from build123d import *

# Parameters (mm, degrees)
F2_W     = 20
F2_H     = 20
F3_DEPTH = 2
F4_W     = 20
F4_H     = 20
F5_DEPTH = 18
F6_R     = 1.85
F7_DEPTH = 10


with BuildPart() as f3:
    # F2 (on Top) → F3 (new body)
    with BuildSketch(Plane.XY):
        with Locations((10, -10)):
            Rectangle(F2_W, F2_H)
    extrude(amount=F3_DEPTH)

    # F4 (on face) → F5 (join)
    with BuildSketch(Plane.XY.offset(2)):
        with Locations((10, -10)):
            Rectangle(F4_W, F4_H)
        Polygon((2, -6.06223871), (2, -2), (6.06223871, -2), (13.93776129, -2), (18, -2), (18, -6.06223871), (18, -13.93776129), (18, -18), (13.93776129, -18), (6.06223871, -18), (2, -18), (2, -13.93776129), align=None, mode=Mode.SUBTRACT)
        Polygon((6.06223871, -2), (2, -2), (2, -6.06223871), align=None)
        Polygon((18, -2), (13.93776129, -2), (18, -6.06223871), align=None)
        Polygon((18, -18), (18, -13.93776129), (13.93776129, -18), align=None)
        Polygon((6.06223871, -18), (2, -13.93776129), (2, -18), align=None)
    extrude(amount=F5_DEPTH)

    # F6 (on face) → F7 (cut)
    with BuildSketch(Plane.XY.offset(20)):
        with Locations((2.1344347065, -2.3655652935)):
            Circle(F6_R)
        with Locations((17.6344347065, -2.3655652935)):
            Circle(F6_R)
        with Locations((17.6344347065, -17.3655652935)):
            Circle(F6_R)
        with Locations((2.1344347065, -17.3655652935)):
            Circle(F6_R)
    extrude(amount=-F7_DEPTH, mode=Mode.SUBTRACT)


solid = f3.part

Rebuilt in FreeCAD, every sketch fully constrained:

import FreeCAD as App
import Part
import Sketcher
from FreeCAD import Vector


def add_polygon(sketch, points):
    """Adds a closed chain of lines whose ends are joined by coincident constraints."""
    first, n = sketch.GeometryCount, len(points)
    for a, b in zip(points, points[1:] + points[:1]):
        sketch.addGeometry(Part.LineSegment(App.Vector(*a, 0), App.Vector(*b, 0)), False)
    for i in range(n):
        sketch.addConstraint(Sketcher.Constraint("Coincident", first + i, 2, first + (i + 1) % n, 1))

doc = App.newDocument("Part")
body = doc.addObject("PartDesign::Body", "Body")

# Sketch on XY plane
sketch1 = doc.addObject("Sketcher::SketchObject", "Sketch")
body.addObject(sketch1)
sketch1.AttachmentSupport = (doc.XY_Plane, [""])
sketch1.MapMode = "FlatFace"
add_polygon(sketch1, [(0, 0), (0, -20), (20, -20), (20, 0)])  # lines 0-3
sketch1.addConstraint([
    Sketcher.Constraint("Vertical", 0),
    Sketcher.Constraint("Horizontal", 1),
    Sketcher.Constraint("Vertical", 2),
    Sketcher.Constraint("Horizontal", 3),
    Sketcher.Constraint("Coincident", 3, 2, -1, 1),
    Sketcher.Constraint("Equal", 3, 0),
    Sketcher.Constraint("DistanceX", 1, 1, 1, 2, 20.0),
])
pad1 = doc.addObject("PartDesign::Pad", "Pad")
body.addObject(pad1)
pad1.Profile = sketch1
pad1.Length = 2

# Sketch on XY plane
sketch2 = doc.addObject("Sketcher::SketchObject", "Sketch001")
body.addObject(sketch2)
sketch2.AttachmentSupport = (doc.XY_Plane, [""])
sketch2.MapMode = "FlatFace"
sketch2.AttachmentOffset = App.Placement(Vector(0, 0, 2), App.Rotation())
add_polygon(sketch2, [(0, 0), (0, -20), (20, -20), (20, 0)])  # lines 0-3
add_polygon(sketch2, [(2, -14), (2, -6), (6, -2), (14, -2), (18, -6), (18, -14), (14, -18), (6, -18)])  # lines 4-11
sketch2.addConstraint([
    Sketcher.Constraint("Vertical", 0),
    Sketcher.Constraint("Horizontal", 1),
    Sketcher.Constraint("Vertical", 2),
    Sketcher.Constraint("Horizontal", 3),
    Sketcher.Constraint("Vertical", 4),
    Sketcher.Constraint("Horizontal", 6),
    Sketcher.Constraint("Vertical", 8),
    Sketcher.Constraint("Horizontal", 10),
    Sketcher.Constraint("Coincident", 3, 2, -1, 1),
    Sketcher.Constraint("Perpendicular", 5, 7),
    Sketcher.Constraint("Perpendicular", 7, 9),
    Sketcher.Constraint("Perpendicular", 9, 11),
    Sketcher.Constraint("Horizontal", 4, 2, 7, 2),
    Sketcher.Constraint("Horizontal", 8, 2, 11, 2),
    Sketcher.Constraint("Vertical", 6, 2, 9, 2),
    Sketcher.Constraint("Vertical", 5, 2, 10, 2),
    Sketcher.Constraint("Equal", 3, 0),
    Sketcher.Constraint("Equal", 10, 4),
    Sketcher.Constraint("DistanceX", 1, 1, 1, 2, 20.0),
    Sketcher.Constraint("DistanceX", -1, 1, 4, 2, 2.0),
    Sketcher.Constraint("DistanceY", 5, 2, -1, 1, 2.0),
    Sketcher.Constraint("DistanceX", -1, 1, 7, 2, 18.0),
    Sketcher.Constraint("DistanceX", 6, 1, 6, 2, 7.875523),
])
pad2 = doc.addObject("PartDesign::Pad", "Pad001")
body.addObject(pad2)
pad2.Profile = sketch2
pad2.Length = 18

# Sketch on XY plane
sketch3 = doc.addObject("Sketcher::SketchObject", "Sketch002")
body.addObject(sketch3)
sketch3.AttachmentSupport = (doc.XY_Plane, [""])
sketch3.MapMode = "FlatFace"
sketch3.AttachmentOffset = App.Placement(Vector(0, 0, 20), App.Rotation())
sketch3.addGeometry([
    Part.Circle(Vector(2.1, -2.4, 0), Vector(0, 0, 1), 1.9),
    Part.Circle(Vector(17.6, -2.4, 0), Vector(0, 0, 1), 1.9),
    Part.Circle(Vector(17.6, -17.4, 0), Vector(0, 0, 1), 1.9),
    Part.Circle(Vector(2.1, -17.4, 0), Vector(0, 0, 1), 1.9),
], False)
sketch3.addConstraint([
    Sketcher.Constraint("Equal", 0, 1),
    Sketcher.Constraint("Equal", 1, 2),
    Sketcher.Constraint("Equal", 2, 3),
    Sketcher.Constraint("Horizontal", 0, 3, 1, 3),
    Sketcher.Constraint("Horizontal", 2, 3, 3, 3),
    Sketcher.Constraint("Vertical", 1, 3, 2, 3),
    Sketcher.Constraint("Vertical", 0, 3, 3, 3),
    Sketcher.Constraint("Diameter", 0, 3.7),
    Sketcher.Constraint("DistanceY", 2, 3, 1, 3, 15.0),
    Sketcher.Constraint("DistanceX", 0, 3, 1, 3, 15.5),
    Sketcher.Constraint("DistanceX", -1, 1, 0, 3, 2.134435),
    Sketcher.Constraint("DistanceY", 0, 3, -1, 1, 2.365565),
])
pocket1 = doc.addObject("PartDesign::Pocket", "Pocket")
body.addObject(pocket1)
pocket1.Profile = sketch3
pocket1.Length = 10

doc.recompute()
